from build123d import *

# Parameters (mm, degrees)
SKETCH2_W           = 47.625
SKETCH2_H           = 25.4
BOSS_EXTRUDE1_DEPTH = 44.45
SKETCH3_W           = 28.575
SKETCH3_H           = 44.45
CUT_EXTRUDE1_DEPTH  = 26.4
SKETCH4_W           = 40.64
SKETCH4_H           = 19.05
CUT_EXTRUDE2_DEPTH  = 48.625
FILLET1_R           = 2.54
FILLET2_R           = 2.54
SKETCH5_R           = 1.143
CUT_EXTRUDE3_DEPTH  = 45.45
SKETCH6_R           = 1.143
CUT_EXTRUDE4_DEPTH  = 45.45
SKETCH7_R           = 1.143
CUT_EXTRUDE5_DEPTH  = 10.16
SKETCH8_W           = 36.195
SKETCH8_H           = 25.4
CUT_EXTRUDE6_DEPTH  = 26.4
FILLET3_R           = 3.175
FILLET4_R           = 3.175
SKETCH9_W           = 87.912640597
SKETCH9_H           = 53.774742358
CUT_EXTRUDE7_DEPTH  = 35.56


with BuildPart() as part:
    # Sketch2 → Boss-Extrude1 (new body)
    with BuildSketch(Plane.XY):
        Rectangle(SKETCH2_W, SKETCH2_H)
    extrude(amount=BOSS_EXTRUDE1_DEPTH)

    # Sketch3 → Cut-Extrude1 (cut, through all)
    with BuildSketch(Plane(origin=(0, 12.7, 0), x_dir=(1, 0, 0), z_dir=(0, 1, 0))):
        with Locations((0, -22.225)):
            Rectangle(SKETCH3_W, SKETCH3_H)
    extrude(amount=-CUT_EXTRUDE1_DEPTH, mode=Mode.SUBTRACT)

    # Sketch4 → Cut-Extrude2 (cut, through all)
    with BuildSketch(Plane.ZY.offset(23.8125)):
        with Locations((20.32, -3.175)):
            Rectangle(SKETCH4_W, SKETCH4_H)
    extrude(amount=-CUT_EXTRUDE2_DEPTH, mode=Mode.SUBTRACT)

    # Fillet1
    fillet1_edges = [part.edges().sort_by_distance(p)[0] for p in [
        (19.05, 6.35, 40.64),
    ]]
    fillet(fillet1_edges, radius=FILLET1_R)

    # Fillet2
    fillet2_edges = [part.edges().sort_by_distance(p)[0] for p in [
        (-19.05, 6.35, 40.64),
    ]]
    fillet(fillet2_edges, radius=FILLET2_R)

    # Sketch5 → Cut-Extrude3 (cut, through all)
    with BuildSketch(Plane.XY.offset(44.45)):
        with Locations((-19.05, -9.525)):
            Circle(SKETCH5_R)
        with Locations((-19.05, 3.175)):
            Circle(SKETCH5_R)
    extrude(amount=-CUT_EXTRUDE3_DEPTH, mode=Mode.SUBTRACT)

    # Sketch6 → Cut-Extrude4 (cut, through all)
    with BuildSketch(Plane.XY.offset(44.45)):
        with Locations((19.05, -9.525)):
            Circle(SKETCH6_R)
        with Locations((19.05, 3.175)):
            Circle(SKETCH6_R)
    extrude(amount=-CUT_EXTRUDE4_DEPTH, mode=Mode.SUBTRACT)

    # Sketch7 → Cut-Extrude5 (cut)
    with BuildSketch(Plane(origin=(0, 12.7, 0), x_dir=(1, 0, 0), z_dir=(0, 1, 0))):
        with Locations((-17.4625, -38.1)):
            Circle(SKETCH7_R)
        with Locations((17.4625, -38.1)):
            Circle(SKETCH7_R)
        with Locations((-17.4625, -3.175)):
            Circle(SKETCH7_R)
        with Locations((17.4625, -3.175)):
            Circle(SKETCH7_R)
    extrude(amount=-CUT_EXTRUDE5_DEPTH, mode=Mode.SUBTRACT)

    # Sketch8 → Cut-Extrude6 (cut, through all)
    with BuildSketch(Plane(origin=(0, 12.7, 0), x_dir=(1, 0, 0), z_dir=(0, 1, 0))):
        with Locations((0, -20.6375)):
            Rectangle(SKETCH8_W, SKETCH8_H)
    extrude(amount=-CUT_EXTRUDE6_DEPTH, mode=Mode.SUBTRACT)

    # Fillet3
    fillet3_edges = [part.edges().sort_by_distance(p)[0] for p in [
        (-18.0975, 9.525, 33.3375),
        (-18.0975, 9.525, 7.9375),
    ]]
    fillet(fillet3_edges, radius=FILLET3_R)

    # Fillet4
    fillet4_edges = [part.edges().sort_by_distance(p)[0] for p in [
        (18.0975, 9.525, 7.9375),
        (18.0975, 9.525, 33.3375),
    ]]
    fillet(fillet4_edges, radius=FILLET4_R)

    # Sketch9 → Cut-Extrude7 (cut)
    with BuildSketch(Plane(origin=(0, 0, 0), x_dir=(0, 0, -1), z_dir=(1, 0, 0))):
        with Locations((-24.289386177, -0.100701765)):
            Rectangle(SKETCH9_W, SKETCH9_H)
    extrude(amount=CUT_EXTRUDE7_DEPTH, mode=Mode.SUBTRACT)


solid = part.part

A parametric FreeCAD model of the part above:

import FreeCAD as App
import Part
import Sketcher
from FreeCAD import Vector
Q = App.Units.Quantity


def edges_at(feature, points):
    """Names of the edges that pass closest to the given points."""
    edges = feature.Shape.Edges
    near = lambda p: min(range(len(edges)), key=lambda i: edges[i].distToShape(Part.Vertex(*p))[0])
    return sorted({f"Edge{near(p) + 1}" for p in points})


def add_polygon(sketch, points):
    """Adds a closed chain of lines whose ends are joined by coincident constraints."""
    first, n = sketch.GeometryCount, len(points)
    for a, b in zip(points, points[1:] + points[:1]):
        sketch.addGeometry(Part.LineSegment(App.Vector(*a, 0), App.Vector(*b, 0)), False)
    for i in range(n):
        sketch.addConstraint(Sketcher.Constraint("Coincident", first + i, 2, first + (i + 1) % n, 1))

doc = App.newDocument("Part")
body = doc.addObject("PartDesign::Body", "Body")
body.AllowCompound = True

# Sketch on XY plane
sketch1 = body.newObject("Sketcher::SketchObject", "Sketch")
sketch1.AttachmentSupport = (doc.getObject("XY_Plane"), [""])
sketch1.MapMode = "FlatFace"
add_polygon(sketch1, [(-24, 13), (-24, -13), (24, -13), (24, 13)])  # lines 0-3
sketch1.addConstraint(Sketcher.Constraint("Vertical", 0))
sketch1.addConstraint(Sketcher.Constraint("Horizontal", 1))
sketch1.addConstraint(Sketcher.Constraint("Vertical", 2))
sketch1.addConstraint(Sketcher.Constraint("Horizontal", 3))
sketch1.addConstraint(Sketcher.Constraint("Symmetric", 0, 2, 2, 2, -1, 1))
sketch1.addConstraint(Sketcher.Constraint("DistanceY", 0, 2, 0, 1, Q("1 in")))
sketch1.addConstraint(Sketcher.Constraint("DistanceX", 1, 1, 1, 2, Q("1.875 in")))
pad1 = body.newObject("PartDesign::Pad", "Pad")
pad1.Profile = sketch1
pad1.Length = Q("1.75 in")

# Sketch on XZ plane
sketch2 = body.newObject("Sketcher::SketchObject", "Sketch001")
sketch2.AttachmentSupport = (doc.getObject("XZ_Plane"), [""])
sketch2.MapMode = "FlatFace"
sketch2.AttachmentOffset = App.Placement(Vector(0, 0, -0.5 * 25.4), App.Rotation())
add_polygon(sketch2, [(-14, 0), (-14, 44), (14, 44), (14, 0)])  # lines 0-3
sketch2.addConstraint(Sketcher.Constraint("Vertical", 0))
sketch2.addConstraint(Sketcher.Constraint("Horizontal", 1))
sketch2.addConstraint(Sketcher.Constraint("Vertical", 2))
sketch2.addConstraint(Sketcher.Constraint("Horizontal", 3))
sketch2.addConstraint(Sketcher.Constraint("Symmetric", 2, 2, 3, 2, -1, 1))
sketch2.addConstraint(Sketcher.Constraint("DistanceY", 0, 1, 0, 2, Q("1.75 in")))
sketch2.addConstraint(Sketcher.Constraint("DistanceX", 1, 1, 1, 2, Q("1.125 in")))
pocket1 = body.newObject("PartDesign::Pocket", "Pocket")
pocket1.Profile = sketch2
pocket1.Type = "ThroughAll"
pocket1.Reversed = True

# Sketch on YZ plane
sketch3 = body.newObject("Sketcher::SketchObject", "Sketch002")
sketch3.AttachmentSupport = (doc.getObject("YZ_Plane"), [""])
sketch3.MapMode = "FlatFace"
sketch3.AttachmentOffset = App.Placement(Vector(0, 0, -0.9375 * 25.4), App.Rotation())
add_polygon(sketch3, [(6, 0), (-13, 0), (-13, 41), (6, 41)])  # lines 0-3
sketch3.addConstraint(Sketcher.Constraint("Horizontal", 0))
sketch3.addConstraint(Sketcher.Constraint("Vertical", 1))
sketch3.addConstraint(Sketcher.Constraint("Horizontal", 2))
sketch3.addConstraint(Sketcher.Constraint("Vertical", 3))
sketch3.addConstraint(Sketcher.Constraint("PointOnObject", 0, 2, -1))
sketch3.addConstraint(Sketcher.Constraint("DistanceY", 1, 1, 1, 2, Q("1.6 in")))
sketch3.addConstraint(Sketcher.Constraint("DistanceX", 0, 2, 0, 1, Q("0.75 in")))
sketch3.addConstraint(Sketcher.Constraint("DistanceX", 0, 2, -1, 1, Q("0.5 in")))
pocket2 = body.newObject("PartDesign::Pocket", "Pocket001")
pocket2.Profile = sketch3
pocket2.Type = "ThroughAll"
pocket2.Reversed = True
doc.recompute()

fillet = body.newObject("PartDesign::Fillet", "Fillet")
fillet.Base = (pocket2, edges_at(pocket2, [(19.05, 6.35, 40.64)]))
fillet.Radius = Q("0.1 in")
doc.recompute()

fillet2 = body.newObject("PartDesign::Fillet", "Fillet001")
fillet2.Base = (fillet, edges_at(fillet, [(-19.05, 6.35, 40.64)]))
fillet2.Radius = Q("0.1 in")

# Sketch on XY plane
sketch4 = body.newObject("Sketcher::SketchObject", "Sketch003")
sketch4.AttachmentSupport = (doc.getObject("XY_Plane"), [""])
sketch4.MapMode = "FlatFace"
sketch4.AttachmentOffset = App.Placement(Vector(0, 0, 1.75 * 25.4), App.Rotation())
sketch4.addGeometry(Part.Circle(Vector(-19.1, -9.5, 0), Vector(0, 0, 1), 1.1), False)
sketch4.addGeometry(Part.Circle(Vector(-19.1, 3.2, 0), Vector(0, 0, 1), 1.1), False)
sketch4.addConstraint(Sketcher.Constraint("Equal", 0, 1))
sketch4.addConstraint(Sketcher.Constraint("Vertical", 0, 3, 1, 3))
sketch4.addConstraint(Sketcher.Constraint("Diameter", 0, Q("0.09 in")))
sketch4.addConstraint(Sketcher.Constraint("DistanceY", 0, 3, 1, 3, Q("0.5 in")))
sketch4.addConstraint(Sketcher.Constraint("DistanceX", 0, 3, -1, 1, Q("0.75 in")))
sketch4.addConstraint(Sketcher.Constraint("DistanceY", 0, 3, -1, 1, Q("0.375 in")))
pocket3 = body.newObject("PartDesign::Pocket", "Pocket002")
pocket3.Profile = sketch4
pocket3.Type = "ThroughAll"

# Sketch on XY plane
sketch5 = body.newObject("Sketcher::SketchObject", "Sketch004")
sketch5.AttachmentSupport = (doc.getObject("XY_Plane"), [""])
sketch5.MapMode = "FlatFace"
sketch5.AttachmentOffset = App.Placement(Vector(0, 0, 1.75 * 25.4), App.Rotation())
sketch5.addGeometry(Part.Circle(Vector(19.1, -9.5, 0), Vector(0, 0, 1), 1.1), False)
sketch5.addGeometry(Part.Circle(Vector(19.1, 3.2, 0), Vector(0, 0, 1), 1.1), False)
sketch5.addConstraint(Sketcher.Constraint("Equal", 0, 1))
sketch5.addConstraint(Sketcher.Constraint("Vertical", 0, 3, 1, 3))
sketch5.addConstraint(Sketcher.Constraint("Diameter", 0, Q("0.09 in")))
sketch5.addConstraint(Sketcher.Constraint("DistanceY", 0, 3, 1, 3, Q("0.5 in")))
sketch5.addConstraint(Sketcher.Constraint("DistanceX", -1, 1, 0, 3, Q("0.75 in")))
sketch5.addConstraint(Sketcher.Constraint("DistanceY", 0, 3, -1, 1, Q("0.375 in")))
pocket4 = body.newObject("PartDesign::Pocket", "Pocket003")
pocket4.Profile = sketch5
pocket4.Type = "ThroughAll"

# Sketch on XZ plane
sketch6 = body.newObject("Sketcher::SketchObject", "Sketch005")
sketch6.AttachmentSupport = (doc.getObject("XZ_Plane"), [""])
sketch6.MapMode = "FlatFace"
sketch6.AttachmentOffset = App.Placement(Vector(0, 0, -0.5 * 25.4), App.Rotation())
sketch6.addGeometry(Part.Circle(Vector(-17.5, 38.1, 0), Vector(0, 0, 1), 1.1), False)
sketch6.addGeometry(Part.Circle(Vector(17.5, 38.1, 0), Vector(0, 0, 1), 1.1), False)
sketch6.addGeometry(Part.Circle(Vector(-17.5, 3.2, 0), Vector(0, 0, 1), 1.1), False)
sketch6.addGeometry(Part.Circle(Vector(17.5, 3.2, 0), Vector(0, 0, 1), 1.1), False)
sketch6.addConstraint(Sketcher.Constraint("Equal", 0, 1))
sketch6.addConstraint(Sketcher.Constraint("Equal", 1, 2))
sketch6.addConstraint(Sketcher.Constraint("Equal", 2, 3))
sketch6.addConstraint(Sketcher.Constraint("Symmetric", 0, 3, 1, 3, -2))
sketch6.addConstraint(Sketcher.Constraint("Symmetric", 2, 3, 3, 3, -2))
sketch6.addConstraint(Sketcher.Constraint("Vertical", 0, 3, 2, 3))
sketch6.addConstraint(Sketcher.Constraint("Diameter", 0, Q("0.09 in")))
sketch6.addConstraint(Sketcher.Constraint("DistanceY", -1, 1, 0, 3, Q("1.5 in")))
sketch6.addConstraint(Sketcher.Constraint("DistanceX", 0, 3, -1, 1, Q("0.6875 in")))
sketch6.addConstraint(Sketcher.Constraint("DistanceY", -1, 1, 2, 3, Q("0.125 in")))
pocket5 = body.newObject("PartDesign::Pocket", "Pocket004")
pocket5.Profile = sketch6
pocket5.Length = Q("0.4 in")
pocket5.Reversed = True

# Sketch on XZ plane
sketch7 = body.newObject("Sketcher::SketchObject", "Sketch006")
sketch7.AttachmentSupport = (doc.getObject("XZ_Plane"), [""])
sketch7.MapMode = "FlatFace"
sketch7.AttachmentOffset = App.Placement(Vector(0, 0, -0.5 * 25.4), App.Rotation())
add_polygon(sketch7, [(-18, 8), (-18, 33), (18, 33), (18, 8)])  # lines 0-3
sketch7.addConstraint(Sketcher.Constraint("Vertical", 0))
sketch7.addConstraint(Sketcher.Constraint("Horizontal", 1))
sketch7.addConstraint(Sketcher.Constraint("Vertical", 2))
sketch7.addConstraint(Sketcher.Constraint("Horizontal", 3))
sketch7.addConstraint(Sketcher.Constraint("DistanceY", 0, 1, 0, 2, Q("1 in")))
sketch7.addConstraint(Sketcher.Constraint("DistanceX", 1, 1, 1, 2, Q("1.425 in")))
sketch7.addConstraint(Sketcher.Constraint("DistanceY", -1, 1, 0, 2, Q("1.3125 in")))
sketch7.addConstraint(Sketcher.Constraint("DistanceX", 0, 2, -1, 1, Q("0.7125 in")))
pocket6 = body.newObject("PartDesign::Pocket", "Pocket005")
pocket6.Profile = sketch7
pocket6.Type = "ThroughAll"
pocket6.Reversed = True
doc.recompute()

fillet3 = body.newObject("PartDesign::Fillet", "Fillet002")
fillet3.Base = (pocket6, edges_at(pocket6, [(-18.098, 9.525, 33.337), (-18.098, 9.525, 7.938)]))
fillet3.Radius = Q("0.125 in")
doc.recompute()

fillet4 = body.newObject("PartDesign::Fillet", "Fillet003")
fillet4.Base = (fillet3, edges_at(fillet3, [(18.098, 9.525, 7.938), (18.098, 9.525, 33.337)]))
fillet4.Radius = Q("0.125 in")

# Sketch on YZ plane
sketch8 = body.newObject("Sketcher::SketchObject", "Sketch007")
sketch8.AttachmentSupport = (doc.getObject("YZ_Plane"), [""])
sketch8.MapMode = "FlatFace"
add_polygon(sketch8, [(27, 68), (-27, 68), (-27, -20), (27, -20)])  # lines 0-3
sketch8.addConstraint(Sketcher.Constraint("Horizontal", 0))
sketch8.addConstraint(Sketcher.Constraint("Vertical", 1))
sketch8.addConstraint(Sketcher.Constraint("Horizontal", 2))
sketch8.addConstraint(Sketcher.Constraint("Vertical", 3))
sketch8.addConstraint(Sketcher.Constraint("DistanceY", 1, 2, 1, 1, Q("87.912641 mm")))
sketch8.addConstraint(Sketcher.Constraint("DistanceX", 0, 2, 0, 1, Q("53.774742 mm")))
sketch8.addConstraint(Sketcher.Constraint("DistanceX", -1, 1, 2, 2, Q("26.786669 mm")))
sketch8.addConstraint(Sketcher.Constraint("DistanceY", -1, 1, 0, 2, Q("68.245706 mm")))
pocket7 = body.newObject("PartDesign::Pocket", "Pocket006")
pocket7.Profile = sketch8
pocket7.Length = Q("1.4 in")
pocket7.Reversed = True

doc.recompute()
